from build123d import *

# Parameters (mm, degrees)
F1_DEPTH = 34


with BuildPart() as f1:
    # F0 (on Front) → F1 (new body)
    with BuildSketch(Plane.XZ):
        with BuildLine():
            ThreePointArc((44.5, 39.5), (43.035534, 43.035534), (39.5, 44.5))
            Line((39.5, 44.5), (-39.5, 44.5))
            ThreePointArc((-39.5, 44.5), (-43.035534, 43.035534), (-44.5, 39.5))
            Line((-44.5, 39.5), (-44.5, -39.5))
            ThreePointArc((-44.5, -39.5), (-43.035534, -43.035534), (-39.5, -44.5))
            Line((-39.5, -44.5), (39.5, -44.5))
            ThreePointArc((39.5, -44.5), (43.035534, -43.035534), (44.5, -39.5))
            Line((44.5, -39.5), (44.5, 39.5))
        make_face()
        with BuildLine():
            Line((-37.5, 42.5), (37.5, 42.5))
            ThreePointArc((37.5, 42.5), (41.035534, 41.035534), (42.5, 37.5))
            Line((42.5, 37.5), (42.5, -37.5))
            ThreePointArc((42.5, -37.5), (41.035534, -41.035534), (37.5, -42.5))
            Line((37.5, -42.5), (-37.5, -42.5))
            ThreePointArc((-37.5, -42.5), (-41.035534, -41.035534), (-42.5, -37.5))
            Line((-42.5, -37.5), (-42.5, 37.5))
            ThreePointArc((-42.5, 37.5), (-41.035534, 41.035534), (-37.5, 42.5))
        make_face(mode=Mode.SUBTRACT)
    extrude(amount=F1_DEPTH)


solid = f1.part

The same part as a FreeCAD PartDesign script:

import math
import FreeCAD as App
import Part
import Sketcher

V = App.Vector
Q = App.Units.Quantity

doc = App.newDocument("Part")
params = doc.addObject("Spreadsheet::Sheet", "Params")
for row, (alias, value) in enumerate([
    ("sketch1_radius", "5 mm"),
    ("sketch1_width", "79 mm"),
    ("sketch1_width2", "75 mm"),
    ("pad1_length", "34 mm"),
], start=1):
    params.set(f"A{row}", alias)
    params.set(f"B{row}", "=" + value)
    params.setAlias(f"B{row}", alias)

body = doc.addObject("PartDesign::Body", "Body")

sketch1 = body.newObject("Sketcher::SketchObject", "Sketch")
sketch1.AttachmentSupport = (doc.getObject("XZ_Plane"), [""])
sketch1.MapMode = "FlatFace"
sketch1.addGeometry([
    Part.ArcOfCircle(Part.Circle(V(39.5, 39.5, 0), V(0, 0, 1), 5), math.radians(0), math.radians(90)),
    Part.LineSegment(V(39.5, 44.5, 0), V(-39.5, 44.5, 0)),
    Part.ArcOfCircle(Part.Circle(V(-39.5, 39.5, 0), V(0, 0, 1), 5), math.radians(90), math.radians(180)),
    Part.LineSegment(V(-44.5, 39.5, 0), V(-44.5, -39.5, 0)),
    Part.ArcOfCircle(Part.Circle(V(-39.5, -39.5, 0), V(0, 0, 1), 5), math.radians(180), math.radians(270)),
    Part.LineSegment(V(-39.5, -44.5, 0), V(39.5, -44.5, 0)),
    Part.ArcOfCircle(Part.Circle(V(39.5, -39.5, 0), V(0, 0, 1), 5), math.radians(-90), math.radians(0)),
    Part.LineSegment(V(44.5, -39.5, 0), V(44.5, 39.5, 0)),
    Part.ArcOfCircle(Part.Circle(V(-37.5, 37.5, 0), V(0, 0, 1), 5), math.radians(90), math.radians(180)),
    Part.LineSegment(V(-37.5, 42.5, 0), V(37.5, 42.5, 0)),
    Part.ArcOfCircle(Part.Circle(V(37.5, 37.5, 0), V(0, 0, 1), 5), math.radians(0), math.radians(90)),
    Part.LineSegment(V(42.5, 37.5, 0), V(42.5, -37.5, 0)),
    Part.ArcOfCircle(Part.Circle(V(37.5, -37.5, 0), V(0, 0, 1), 5), math.radians(-90), math.radians(0)),
    Part.LineSegment(V(37.5, -42.5, 0), V(-37.5, -42.5, 0)),
    Part.ArcOfCircle(Part.Circle(V(-37.5, -37.5, 0), V(0, 0, 1), 5), math.radians(180), math.radians(270)),
    Part.LineSegment(V(-42.5, -37.5, 0), V(-42.5, 37.5, 0)),
], False)
sketch1.addConstraint([
    Sketcher.Constraint("Tangent", 0, 2, 1, 1),
    Sketcher.Constraint("Tangent", 1, 2, 2, 1),
    Sketcher.Constraint("Tangent", 2, 2, 3, 1),
    Sketcher.Constraint("Tangent", 3, 2, 4, 1),
    Sketcher.Constraint("Tangent", 4, 2, 5, 1),
    Sketcher.Constraint("Tangent", 5, 2, 6, 1),
    Sketcher.Constraint("Tangent", 6, 2, 7, 1),
    Sketcher.Constraint("Tangent", 7, 2, 0, 1),
    Sketcher.Constraint("Tangent", 8, 1, 9, 1),
    Sketcher.Constraint("Tangent", 9, 2, 10, 2),
    Sketcher.Constraint("Tangent", 10, 1, 11, 1),
    Sketcher.Constraint("Tangent", 11, 2, 12, 2),
    Sketcher.Constraint("Tangent", 12, 1, 13, 1),
    Sketcher.Constraint("Tangent", 13, 2, 14, 2),
    Sketcher.Constraint("Tangent", 14, 1, 15, 1),
    Sketcher.Constraint("Tangent", 15, 2, 8, 2),
    Sketcher.Constraint("Horizontal", 1),
    Sketcher.Constraint("Vertical", 3),
    Sketcher.Constraint("Horizontal", 5),
    Sketcher.Constraint("Vertical", 7),
    Sketcher.Constraint("Horizontal", 9),
    Sketcher.Constraint("Vertical", 11),
    Sketcher.Constraint("Horizontal", 13),
    Sketcher.Constraint("Vertical", 15),
    Sketcher.Constraint("Equal", 0, 2),
    Sketcher.Constraint("Equal", 2, 4),
    Sketcher.Constraint("Equal", 4, 6),
    Sketcher.Constraint("Equal", 6, 8),
    Sketcher.Constraint("Equal", 8, 10),
    Sketcher.Constraint("Equal", 10, 12),
    Sketcher.Constraint("Equal", 12, 14),
    Sketcher.Constraint("Symmetric", 0, 3, 4, 3, -1, 1),
    Sketcher.Constraint("Symmetric", 8, 3, 12, 3, -1, 1),
    Sketcher.Constraint("Equal", 5, 3),
    Sketcher.Constraint("Equal", 13, 11),
    Sketcher.Constraint("Radius", 0, Q("5 mm")),
    Sketcher.Constraint("DistanceX", 1, 2, 1, 1, Q("79 mm")),
    Sketcher.Constraint("DistanceX", 9, 1, 9, 2, Q("75 mm")),
])
sketch1.setExpression("Constraints[35]", "Params.sketch1_radius")
sketch1.setExpression("Constraints[36]", "Params.sketch1_width")
sketch1.setExpression("Constraints[37]", "Params.sketch1_width2")
pad1 = body.newObject("PartDesign::Pad", "Pad")
pad1.Profile = sketch1
pad1.setExpression("Length", "Params.pad1_length")

doc.recompute()
